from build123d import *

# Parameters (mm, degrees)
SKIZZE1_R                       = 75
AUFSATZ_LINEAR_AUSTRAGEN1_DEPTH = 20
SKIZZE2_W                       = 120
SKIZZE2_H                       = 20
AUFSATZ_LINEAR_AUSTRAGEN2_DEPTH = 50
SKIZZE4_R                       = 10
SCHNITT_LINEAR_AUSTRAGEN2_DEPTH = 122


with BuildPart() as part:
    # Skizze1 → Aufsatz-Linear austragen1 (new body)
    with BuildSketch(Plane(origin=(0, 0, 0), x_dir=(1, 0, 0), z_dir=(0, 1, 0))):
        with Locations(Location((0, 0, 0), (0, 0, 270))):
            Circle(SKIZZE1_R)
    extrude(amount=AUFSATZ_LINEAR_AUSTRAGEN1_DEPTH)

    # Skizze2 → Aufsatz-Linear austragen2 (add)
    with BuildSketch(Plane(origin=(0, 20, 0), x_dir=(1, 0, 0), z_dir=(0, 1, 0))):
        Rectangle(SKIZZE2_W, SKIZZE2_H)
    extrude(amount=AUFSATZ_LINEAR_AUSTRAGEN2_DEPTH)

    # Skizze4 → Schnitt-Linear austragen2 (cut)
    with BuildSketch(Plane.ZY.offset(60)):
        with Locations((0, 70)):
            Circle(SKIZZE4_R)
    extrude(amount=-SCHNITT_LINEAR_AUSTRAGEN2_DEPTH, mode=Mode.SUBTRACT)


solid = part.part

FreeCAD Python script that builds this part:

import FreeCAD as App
import Part
import Sketcher
from FreeCAD import Vector

doc = App.newDocument("Part")
body = doc.addObject("PartDesign::Body", "Body")

# Sketch on XZ plane
sketch1 = body.newObject("Sketcher::SketchObject", "Sketch")
sketch1.AttachmentSupport = (doc.getObject("XZ_Plane"), [""])
sketch1.MapMode = "FlatFace"
sketch1.addGeometry(Part.Circle(Vector(0, 0, 0), Vector(0, 0, 1), 75), False)
sketch1.addConstraint([
    Sketcher.Constraint("Coincident", 0, 3, -1, 1),
    Sketcher.Constraint("Diameter", 0, 150.0),
])
pad1 = body.newObject("PartDesign::Pad", "Pad")
pad1.Profile = sketch1
pad1.Length = 20
pad1.Reversed = True

# Sketch on XZ plane
sketch2 = body.newObject("Sketcher::SketchObject", "Sketch001")
sketch2.AttachmentSupport = (doc.getObject("XZ_Plane"), [""])
sketch2.MapMode = "FlatFace"
sketch2.AttachmentOffset = App.Placement(Vector(0, 0, -20), App.Rotation())
sketch2.addGeometry([
    Part.LineSegment(Vector(-60, -10, 0), Vector(-60, 10, 0)),
    Part.LineSegment(Vector(-60, 10, 0), Vector(60, 10, 0)),
    Part.LineSegment(Vector(60, 10, 0), Vector(60, -10, 0)),
    Part.LineSegment(Vector(60, -10, 0), Vector(-60, -10, 0)),
], False)
sketch2.addConstraint([
    Sketcher.Constraint("Coincident", 0, 2, 1, 1),
    Sketcher.Constraint("Coincident", 1, 2, 2, 1),
    Sketcher.Constraint("Coincident", 2, 2, 3, 1),
    Sketcher.Constraint("Coincident", 3, 2, 0, 1),
    Sketcher.Constraint("Vertical", 0),
    Sketcher.Constraint("Horizontal", 1),
    Sketcher.Constraint("Vertical", 2),
    Sketcher.Constraint("Horizontal", 3),
    Sketcher.Constraint("Symmetric", 0, 2, 2, 2, -1, 1),
    Sketcher.Constraint("DistanceX", 1, 1, 1, 2, 120.0),
    Sketcher.Constraint("DistanceY", 0, 1, 0, 2, 20.0),
])
pad2 = body.newObject("PartDesign::Pad", "Pad001")
pad2.Profile = sketch2
pad2.Length = 50
pad2.Reversed = True

# Sketch on YZ plane
sketch3 = body.newObject("Sketcher::SketchObject", "Sketch002")
sketch3.AttachmentSupport = (doc.getObject("YZ_Plane"), [""])
sketch3.MapMode = "FlatFace"
sketch3.AttachmentOffset = App.Placement(Vector(0, 0, -60), App.Rotation())
sketch3.addGeometry(Part.Circle(Vector(70, 0, 0), Vector(0, 0, 1), 10), False)
sketch3.addConstraint([
    Sketcher.Constraint("PointOnObject", 0, 3, -1),
    Sketcher.Constraint("Diameter", 0, 20.0),
    Sketcher.Constraint("DistanceX", -1, 1, 0, 3, 70.0),
])
pocket1 = body.newObject("PartDesign::Pocket", "Pocket")
pocket1.Profile = sketch3
pocket1.Length = 122
pocket1.Reversed = True

doc.recompute()
